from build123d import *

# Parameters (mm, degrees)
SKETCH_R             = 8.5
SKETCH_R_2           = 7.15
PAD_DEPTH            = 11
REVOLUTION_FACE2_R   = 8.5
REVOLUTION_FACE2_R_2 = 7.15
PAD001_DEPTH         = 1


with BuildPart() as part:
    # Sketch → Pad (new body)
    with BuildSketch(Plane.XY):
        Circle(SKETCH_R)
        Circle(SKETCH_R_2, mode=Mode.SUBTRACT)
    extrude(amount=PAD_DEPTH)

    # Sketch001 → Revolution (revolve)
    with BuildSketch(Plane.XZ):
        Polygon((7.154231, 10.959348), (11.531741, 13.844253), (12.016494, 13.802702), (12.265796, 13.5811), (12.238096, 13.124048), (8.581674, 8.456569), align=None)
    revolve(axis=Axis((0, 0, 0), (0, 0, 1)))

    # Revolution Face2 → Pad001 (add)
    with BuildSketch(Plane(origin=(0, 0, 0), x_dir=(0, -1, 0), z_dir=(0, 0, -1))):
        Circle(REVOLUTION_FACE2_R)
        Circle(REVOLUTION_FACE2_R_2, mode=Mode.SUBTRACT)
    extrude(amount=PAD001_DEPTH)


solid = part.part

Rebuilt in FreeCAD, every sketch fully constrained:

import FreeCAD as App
import Part
import Sketcher
from FreeCAD import Vector
Q = App.Units.Quantity


def add_polygon(sketch, points):
    """Adds a closed chain of lines whose ends are joined by coincident constraints."""
    first, n = sketch.GeometryCount, len(points)
    for a, b in zip(points, points[1:] + points[:1]):
        sketch.addGeometry(Part.LineSegment(App.Vector(*a, 0), App.Vector(*b, 0)), False)
    for i in range(n):
        sketch.addConstraint(Sketcher.Constraint("Coincident", first + i, 2, first + (i + 1) % n, 1))

doc = App.newDocument("Part")
body = doc.addObject("PartDesign::Body", "Body")

# Sketch on XY plane
sketch1 = doc.addObject("Sketcher::SketchObject", "Sketch")
body.addObject(sketch1)
sketch1.AttachmentSupport = (doc.XY_Plane, [""])
sketch1.MapMode = "FlatFace"
sketch1.addGeometry([
    Part.Circle(Vector(0, 0, 0), Vector(0, 0, 1), 8),
    Part.Circle(Vector(0, 0, 0), Vector(0, 0, 1), 7),
], False)
sketch1.addConstraint([
    Sketcher.Constraint("Coincident", 0, 3, -1, 1),
    Sketcher.Constraint("Coincident", 1, 3, -1, 1),
    Sketcher.Constraint("Diameter", 0, Q("17 mm")),
    Sketcher.Constraint("Diameter", 1, Q("14.3 mm")),
])
pad1 = doc.addObject("PartDesign::Pad", "Pad")
body.addObject(pad1)
pad1.Profile = sketch1
pad1.Length = 11

# Sketch on XZ plane
sketch2 = doc.addObject("Sketcher::SketchObject", "Sketch001")
body.addObject(sketch2)
sketch2.AttachmentSupport = (doc.XZ_Plane, [""])
sketch2.MapMode = "FlatFace"
add_polygon(sketch2, [(11.53, 13.84), (7.15, 10.96), (8.58, 8.46), (12.24, 13.12), (12.27, 13.58), (12.02, 13.8)])  # lines 0-5
sketch2.addConstraint([
    Sketcher.Constraint("DistanceY", -1, 1, 3, 2, Q("13.5811 mm")),
    Sketcher.Constraint("DistanceY", 0, 2, 2, 2, Q("2.1647 mm")),
    Sketcher.Constraint("DistanceX", 2, 2, 3, 2, Q("0.0277 mm")),
    Sketcher.Constraint("Distance", 0, Q("5.24264 mm")),
    Sketcher.Constraint("Distance", 1, Q("2.881232 mm")),
    Sketcher.Constraint("Distance", 3, Q("0.457891 mm")),
    Sketcher.Constraint("Distance", 5, Q("0.486531 mm")),
    Sketcher.Constraint("DistanceX", -1, 1, 0, 2, Q("7.154231 mm")),
    Sketcher.Constraint("DistanceY", -1, 1, 1, 2, Q("8.456569 mm")),
    Sketcher.Constraint("DistanceX", -1, 1, 5, 2, Q("11.531741 mm")),
    Sketcher.Constraint("DistanceX", 1, 2, 4, 2, Q("3.43482 mm")),
    Sketcher.Constraint("Distance", 2, Q("5.929147 mm")),
])
revolution = doc.addObject("PartDesign::Revolution", "Revolution")
body.addObject(revolution)
revolution.Profile = sketch2
revolution.ReferenceAxis = (sketch2, ["V_Axis"])
revolution.Angle = 360

# Sketch on XY plane
sketch3 = doc.addObject("Sketcher::SketchObject", "Sketch002")
body.addObject(sketch3)
sketch3.AttachmentSupport = (doc.XY_Plane, [""])
sketch3.MapMode = "FlatFace"
sketch3.addGeometry([
    Part.Circle(Vector(0, 0, 0), Vector(0, 0, 1), 8),
    Part.Circle(Vector(0, 0, 0), Vector(0, 0, 1), 7),
], False)
sketch3.addConstraint([
    Sketcher.Constraint("Coincident", 0, 3, -1, 1),
    Sketcher.Constraint("Coincident", 1, 3, -1, 1),
    Sketcher.Constraint("Diameter", 0, Q("17 mm")),
    Sketcher.Constraint("Diameter", 1, Q("14.3 mm")),
])
pad2 = doc.addObject("PartDesign::Pad", "Pad001")
body.addObject(pad2)
pad2.Profile = sketch3
pad2.Length = 1
pad2.Reversed = True

doc.recompute()
